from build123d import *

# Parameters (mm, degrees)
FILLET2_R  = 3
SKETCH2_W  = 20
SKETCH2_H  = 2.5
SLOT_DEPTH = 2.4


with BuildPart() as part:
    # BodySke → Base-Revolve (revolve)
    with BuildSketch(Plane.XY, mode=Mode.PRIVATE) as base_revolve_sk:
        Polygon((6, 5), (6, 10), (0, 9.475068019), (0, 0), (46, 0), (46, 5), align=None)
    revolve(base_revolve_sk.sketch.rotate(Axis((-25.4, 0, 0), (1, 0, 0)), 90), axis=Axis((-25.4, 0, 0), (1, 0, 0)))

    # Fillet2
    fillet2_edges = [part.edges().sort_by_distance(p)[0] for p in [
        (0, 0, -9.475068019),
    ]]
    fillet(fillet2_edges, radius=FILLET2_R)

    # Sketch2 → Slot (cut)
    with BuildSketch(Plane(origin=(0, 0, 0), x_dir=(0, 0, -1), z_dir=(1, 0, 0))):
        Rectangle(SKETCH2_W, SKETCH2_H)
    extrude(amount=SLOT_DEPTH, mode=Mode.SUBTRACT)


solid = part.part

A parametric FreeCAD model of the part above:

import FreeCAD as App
import Part
import Sketcher
Q = App.Units.Quantity


def edges_at(feature, points):
    """Names of the edges that pass closest to the given points."""
    edges = feature.Shape.Edges
    near = lambda p: min(range(len(edges)), key=lambda i: edges[i].distToShape(Part.Vertex(*p))[0])
    return sorted({f"Edge{near(p) + 1}" for p in points})

doc = App.newDocument("Part")
body = doc.addObject("PartDesign::Body", "Body")

# Sketch on XY plane
sketch1 = doc.addObject("Sketcher::SketchObject", "Sketch")
body.addObject(sketch1)
sketch1.AttachmentSupport = (doc.XY_Plane, [""])
sketch1.MapMode = "FlatFace"
sketch1.addGeometry([
    Part.LineSegment(App.Vector(6, 5, 0), App.Vector(6, 10, 0)),  # 0
    Part.LineSegment(App.Vector(6, 10, 0), App.Vector(0, 9, 0)),  # 1
    Part.LineSegment(App.Vector(0, 9, 0), App.Vector(0, 0, 0)),  # 2
    Part.LineSegment(App.Vector(0, 0, 0), App.Vector(46, 0, 0)),  # 3
    Part.LineSegment(App.Vector(46, 0, 0), App.Vector(46, 5, 0)),  # 4
    Part.LineSegment(App.Vector(46, 5, 0), App.Vector(6, 5, 0)),  # 5
], False)
sketch1.addConstraint([
    Sketcher.Constraint("Coincident", 0, 2, 1, 1),
    Sketcher.Constraint("Coincident", 1, 2, 2, 1),
    Sketcher.Constraint("Coincident", 2, 2, 3, 1),
    Sketcher.Constraint("Coincident", 3, 2, 4, 1),
    Sketcher.Constraint("Coincident", 4, 2, 5, 1),
    Sketcher.Constraint("Coincident", 5, 2, 0, 1),
    Sketcher.Constraint("Vertical", 0),
    Sketcher.Constraint("Vertical", 2),
    Sketcher.Constraint("Horizontal", 3),
    Sketcher.Constraint("Vertical", 4),
    Sketcher.Constraint("Horizontal", 5),
    Sketcher.Constraint("Coincident", 2, 2, -1, 1),
    Sketcher.Constraint("Equal", 0, 4),
    Sketcher.Constraint("DistanceX", 3, 1, 3, 2, Q("46 mm")),
    Sketcher.Constraint("DistanceX", 5, 2, 5, 1, Q("40 mm")),
    Sketcher.Constraint("DistanceY", 0, 1, 0, 2, Q("5 mm")),
    Sketcher.Constraint("Angle", 1, Q("-175 deg")),
])
revolution = doc.addObject("PartDesign::Revolution", "Revolution")
body.addObject(revolution)
revolution.Profile = sketch1
revolution.ReferenceAxis = (sketch1, ["H_Axis"])
revolution.Angle = 360
doc.recompute()

fillet = doc.addObject("PartDesign::Fillet", "Fillet")
body.addObject(fillet)
fillet.Base = (revolution, edges_at(revolution, [(0, 0, -9.475)]))
fillet.Radius = 3

# Sketch on YZ plane
sketch2 = doc.addObject("Sketcher::SketchObject", "Sketch001")
body.addObject(sketch2)
sketch2.AttachmentSupport = (doc.YZ_Plane, [""])
sketch2.MapMode = "FlatFace"
sketch2.addGeometry([
    Part.LineSegment(App.Vector(1.2, 10, 0), App.Vector(-1.2, 10, 0)),
    Part.LineSegment(App.Vector(-1.2, 10, 0), App.Vector(-1.2, -10, 0)),
    Part.LineSegment(App.Vector(-1.2, -10, 0), App.Vector(1.2, -10, 0)),
    Part.LineSegment(App.Vector(1.2, -10, 0), App.Vector(1.2, 10, 0)),
], False)
sketch2.addConstraint([
    Sketcher.Constraint("Coincident", 0, 2, 1, 1),
    Sketcher.Constraint("Coincident", 1, 2, 2, 1),
    Sketcher.Constraint("Coincident", 2, 2, 3, 1),
    Sketcher.Constraint("Coincident", 3, 2, 0, 1),
    Sketcher.Constraint("Horizontal", 0),
    Sketcher.Constraint("Vertical", 1),
    Sketcher.Constraint("Horizontal", 2),
    Sketcher.Constraint("Vertical", 3),
    Sketcher.Constraint("Symmetric", 0, 2, 2, 2, -1, 1),
    Sketcher.Constraint("DistanceY", 1, 2, 1, 1, Q("20 mm")),
    Sketcher.Constraint("DistanceX", 0, 2, 0, 1, Q("2.5 mm")),
])
pocket1 = doc.addObject("PartDesign::Pocket", "Pocket")
body.addObject(pocket1)
pocket1.Profile = sketch2
pocket1.Length = 2.4
pocket1.Reversed = True

doc.recompute()
